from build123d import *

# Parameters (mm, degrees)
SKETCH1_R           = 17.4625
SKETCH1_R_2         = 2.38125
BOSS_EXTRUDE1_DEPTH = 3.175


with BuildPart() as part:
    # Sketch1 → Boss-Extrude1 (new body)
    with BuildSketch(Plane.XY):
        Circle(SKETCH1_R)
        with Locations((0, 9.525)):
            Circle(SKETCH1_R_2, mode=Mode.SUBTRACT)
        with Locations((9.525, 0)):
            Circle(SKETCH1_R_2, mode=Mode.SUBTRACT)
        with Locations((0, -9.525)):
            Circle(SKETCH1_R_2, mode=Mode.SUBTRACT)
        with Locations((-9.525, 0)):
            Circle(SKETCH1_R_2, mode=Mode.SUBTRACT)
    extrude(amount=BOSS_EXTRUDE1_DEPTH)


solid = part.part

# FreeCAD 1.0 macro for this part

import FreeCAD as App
import Part
import Sketcher

V = App.Vector
Q = App.Units.Quantity

doc = App.newDocument("Part")
body = doc.addObject("PartDesign::Body", "Body")

# Sketch on XY plane
sketch1 = body.newObject("Sketcher::SketchObject", "Sketch")
sketch1.AttachmentSupport = (doc.getObject("XY_Plane"), [""])
sketch1.MapMode = "FlatFace"
sketch1.addGeometry(Part.Circle(V(0, 0, 0), V(0, 0, 1), 17.4625), False)
sketch1.addGeometry(Part.Circle(V(0, -9.525, 0), V(0, 0, 1), 2.38125), False)
sketch1.addGeometry(Part.Circle(V(-9.525, 0, 0), V(0, 0, 1), 2.38125), False)
sketch1.addGeometry(Part.Circle(V(9.525, 0, 0), V(0, 0, 1), 2.38125), False)
sketch1.addGeometry(Part.Circle(V(0, 9.525, 0), V(0, 0, 1), 2.38125), False)
sketch1.addConstraint(Sketcher.Constraint("Coincident", 0, 3, -1, 1))
sketch1.addConstraint(Sketcher.Constraint("Equal", 1, 2))
sketch1.addConstraint(Sketcher.Constraint("Equal", 2, 3))
sketch1.addConstraint(Sketcher.Constraint("Equal", 3, 4))
sketch1.addConstraint(Sketcher.Constraint("Symmetric", 2, 3, 3, 3, -1, 1))
sketch1.addConstraint(Sketcher.Constraint("Symmetric", 1, 3, 4, 3, -1, 1))
sketch1.addConstraint(Sketcher.Constraint("PointOnObject", 1, 3, -2))
sketch1.addConstraint(Sketcher.Constraint("PointOnObject", 2, 3, -1))
sketch1.addConstraint(Sketcher.Constraint("Diameter", 0, Q("1.375 in")))
sketch1.addConstraint(Sketcher.Constraint("Diameter", 1, Q("0.1875 in")))
sketch1.addConstraint(Sketcher.Constraint("DistanceX", 2, 3, 3, 3, Q("0.75 in")))
sketch1.addConstraint(Sketcher.Constraint("DistanceY", 1, 3, 4, 3, Q("0.75 in")))
pad1 = body.newObject("PartDesign::Pad", "Pad")
pad1.Profile = sketch1
pad1.Length = Q("0.125 in")

doc.recompute()
